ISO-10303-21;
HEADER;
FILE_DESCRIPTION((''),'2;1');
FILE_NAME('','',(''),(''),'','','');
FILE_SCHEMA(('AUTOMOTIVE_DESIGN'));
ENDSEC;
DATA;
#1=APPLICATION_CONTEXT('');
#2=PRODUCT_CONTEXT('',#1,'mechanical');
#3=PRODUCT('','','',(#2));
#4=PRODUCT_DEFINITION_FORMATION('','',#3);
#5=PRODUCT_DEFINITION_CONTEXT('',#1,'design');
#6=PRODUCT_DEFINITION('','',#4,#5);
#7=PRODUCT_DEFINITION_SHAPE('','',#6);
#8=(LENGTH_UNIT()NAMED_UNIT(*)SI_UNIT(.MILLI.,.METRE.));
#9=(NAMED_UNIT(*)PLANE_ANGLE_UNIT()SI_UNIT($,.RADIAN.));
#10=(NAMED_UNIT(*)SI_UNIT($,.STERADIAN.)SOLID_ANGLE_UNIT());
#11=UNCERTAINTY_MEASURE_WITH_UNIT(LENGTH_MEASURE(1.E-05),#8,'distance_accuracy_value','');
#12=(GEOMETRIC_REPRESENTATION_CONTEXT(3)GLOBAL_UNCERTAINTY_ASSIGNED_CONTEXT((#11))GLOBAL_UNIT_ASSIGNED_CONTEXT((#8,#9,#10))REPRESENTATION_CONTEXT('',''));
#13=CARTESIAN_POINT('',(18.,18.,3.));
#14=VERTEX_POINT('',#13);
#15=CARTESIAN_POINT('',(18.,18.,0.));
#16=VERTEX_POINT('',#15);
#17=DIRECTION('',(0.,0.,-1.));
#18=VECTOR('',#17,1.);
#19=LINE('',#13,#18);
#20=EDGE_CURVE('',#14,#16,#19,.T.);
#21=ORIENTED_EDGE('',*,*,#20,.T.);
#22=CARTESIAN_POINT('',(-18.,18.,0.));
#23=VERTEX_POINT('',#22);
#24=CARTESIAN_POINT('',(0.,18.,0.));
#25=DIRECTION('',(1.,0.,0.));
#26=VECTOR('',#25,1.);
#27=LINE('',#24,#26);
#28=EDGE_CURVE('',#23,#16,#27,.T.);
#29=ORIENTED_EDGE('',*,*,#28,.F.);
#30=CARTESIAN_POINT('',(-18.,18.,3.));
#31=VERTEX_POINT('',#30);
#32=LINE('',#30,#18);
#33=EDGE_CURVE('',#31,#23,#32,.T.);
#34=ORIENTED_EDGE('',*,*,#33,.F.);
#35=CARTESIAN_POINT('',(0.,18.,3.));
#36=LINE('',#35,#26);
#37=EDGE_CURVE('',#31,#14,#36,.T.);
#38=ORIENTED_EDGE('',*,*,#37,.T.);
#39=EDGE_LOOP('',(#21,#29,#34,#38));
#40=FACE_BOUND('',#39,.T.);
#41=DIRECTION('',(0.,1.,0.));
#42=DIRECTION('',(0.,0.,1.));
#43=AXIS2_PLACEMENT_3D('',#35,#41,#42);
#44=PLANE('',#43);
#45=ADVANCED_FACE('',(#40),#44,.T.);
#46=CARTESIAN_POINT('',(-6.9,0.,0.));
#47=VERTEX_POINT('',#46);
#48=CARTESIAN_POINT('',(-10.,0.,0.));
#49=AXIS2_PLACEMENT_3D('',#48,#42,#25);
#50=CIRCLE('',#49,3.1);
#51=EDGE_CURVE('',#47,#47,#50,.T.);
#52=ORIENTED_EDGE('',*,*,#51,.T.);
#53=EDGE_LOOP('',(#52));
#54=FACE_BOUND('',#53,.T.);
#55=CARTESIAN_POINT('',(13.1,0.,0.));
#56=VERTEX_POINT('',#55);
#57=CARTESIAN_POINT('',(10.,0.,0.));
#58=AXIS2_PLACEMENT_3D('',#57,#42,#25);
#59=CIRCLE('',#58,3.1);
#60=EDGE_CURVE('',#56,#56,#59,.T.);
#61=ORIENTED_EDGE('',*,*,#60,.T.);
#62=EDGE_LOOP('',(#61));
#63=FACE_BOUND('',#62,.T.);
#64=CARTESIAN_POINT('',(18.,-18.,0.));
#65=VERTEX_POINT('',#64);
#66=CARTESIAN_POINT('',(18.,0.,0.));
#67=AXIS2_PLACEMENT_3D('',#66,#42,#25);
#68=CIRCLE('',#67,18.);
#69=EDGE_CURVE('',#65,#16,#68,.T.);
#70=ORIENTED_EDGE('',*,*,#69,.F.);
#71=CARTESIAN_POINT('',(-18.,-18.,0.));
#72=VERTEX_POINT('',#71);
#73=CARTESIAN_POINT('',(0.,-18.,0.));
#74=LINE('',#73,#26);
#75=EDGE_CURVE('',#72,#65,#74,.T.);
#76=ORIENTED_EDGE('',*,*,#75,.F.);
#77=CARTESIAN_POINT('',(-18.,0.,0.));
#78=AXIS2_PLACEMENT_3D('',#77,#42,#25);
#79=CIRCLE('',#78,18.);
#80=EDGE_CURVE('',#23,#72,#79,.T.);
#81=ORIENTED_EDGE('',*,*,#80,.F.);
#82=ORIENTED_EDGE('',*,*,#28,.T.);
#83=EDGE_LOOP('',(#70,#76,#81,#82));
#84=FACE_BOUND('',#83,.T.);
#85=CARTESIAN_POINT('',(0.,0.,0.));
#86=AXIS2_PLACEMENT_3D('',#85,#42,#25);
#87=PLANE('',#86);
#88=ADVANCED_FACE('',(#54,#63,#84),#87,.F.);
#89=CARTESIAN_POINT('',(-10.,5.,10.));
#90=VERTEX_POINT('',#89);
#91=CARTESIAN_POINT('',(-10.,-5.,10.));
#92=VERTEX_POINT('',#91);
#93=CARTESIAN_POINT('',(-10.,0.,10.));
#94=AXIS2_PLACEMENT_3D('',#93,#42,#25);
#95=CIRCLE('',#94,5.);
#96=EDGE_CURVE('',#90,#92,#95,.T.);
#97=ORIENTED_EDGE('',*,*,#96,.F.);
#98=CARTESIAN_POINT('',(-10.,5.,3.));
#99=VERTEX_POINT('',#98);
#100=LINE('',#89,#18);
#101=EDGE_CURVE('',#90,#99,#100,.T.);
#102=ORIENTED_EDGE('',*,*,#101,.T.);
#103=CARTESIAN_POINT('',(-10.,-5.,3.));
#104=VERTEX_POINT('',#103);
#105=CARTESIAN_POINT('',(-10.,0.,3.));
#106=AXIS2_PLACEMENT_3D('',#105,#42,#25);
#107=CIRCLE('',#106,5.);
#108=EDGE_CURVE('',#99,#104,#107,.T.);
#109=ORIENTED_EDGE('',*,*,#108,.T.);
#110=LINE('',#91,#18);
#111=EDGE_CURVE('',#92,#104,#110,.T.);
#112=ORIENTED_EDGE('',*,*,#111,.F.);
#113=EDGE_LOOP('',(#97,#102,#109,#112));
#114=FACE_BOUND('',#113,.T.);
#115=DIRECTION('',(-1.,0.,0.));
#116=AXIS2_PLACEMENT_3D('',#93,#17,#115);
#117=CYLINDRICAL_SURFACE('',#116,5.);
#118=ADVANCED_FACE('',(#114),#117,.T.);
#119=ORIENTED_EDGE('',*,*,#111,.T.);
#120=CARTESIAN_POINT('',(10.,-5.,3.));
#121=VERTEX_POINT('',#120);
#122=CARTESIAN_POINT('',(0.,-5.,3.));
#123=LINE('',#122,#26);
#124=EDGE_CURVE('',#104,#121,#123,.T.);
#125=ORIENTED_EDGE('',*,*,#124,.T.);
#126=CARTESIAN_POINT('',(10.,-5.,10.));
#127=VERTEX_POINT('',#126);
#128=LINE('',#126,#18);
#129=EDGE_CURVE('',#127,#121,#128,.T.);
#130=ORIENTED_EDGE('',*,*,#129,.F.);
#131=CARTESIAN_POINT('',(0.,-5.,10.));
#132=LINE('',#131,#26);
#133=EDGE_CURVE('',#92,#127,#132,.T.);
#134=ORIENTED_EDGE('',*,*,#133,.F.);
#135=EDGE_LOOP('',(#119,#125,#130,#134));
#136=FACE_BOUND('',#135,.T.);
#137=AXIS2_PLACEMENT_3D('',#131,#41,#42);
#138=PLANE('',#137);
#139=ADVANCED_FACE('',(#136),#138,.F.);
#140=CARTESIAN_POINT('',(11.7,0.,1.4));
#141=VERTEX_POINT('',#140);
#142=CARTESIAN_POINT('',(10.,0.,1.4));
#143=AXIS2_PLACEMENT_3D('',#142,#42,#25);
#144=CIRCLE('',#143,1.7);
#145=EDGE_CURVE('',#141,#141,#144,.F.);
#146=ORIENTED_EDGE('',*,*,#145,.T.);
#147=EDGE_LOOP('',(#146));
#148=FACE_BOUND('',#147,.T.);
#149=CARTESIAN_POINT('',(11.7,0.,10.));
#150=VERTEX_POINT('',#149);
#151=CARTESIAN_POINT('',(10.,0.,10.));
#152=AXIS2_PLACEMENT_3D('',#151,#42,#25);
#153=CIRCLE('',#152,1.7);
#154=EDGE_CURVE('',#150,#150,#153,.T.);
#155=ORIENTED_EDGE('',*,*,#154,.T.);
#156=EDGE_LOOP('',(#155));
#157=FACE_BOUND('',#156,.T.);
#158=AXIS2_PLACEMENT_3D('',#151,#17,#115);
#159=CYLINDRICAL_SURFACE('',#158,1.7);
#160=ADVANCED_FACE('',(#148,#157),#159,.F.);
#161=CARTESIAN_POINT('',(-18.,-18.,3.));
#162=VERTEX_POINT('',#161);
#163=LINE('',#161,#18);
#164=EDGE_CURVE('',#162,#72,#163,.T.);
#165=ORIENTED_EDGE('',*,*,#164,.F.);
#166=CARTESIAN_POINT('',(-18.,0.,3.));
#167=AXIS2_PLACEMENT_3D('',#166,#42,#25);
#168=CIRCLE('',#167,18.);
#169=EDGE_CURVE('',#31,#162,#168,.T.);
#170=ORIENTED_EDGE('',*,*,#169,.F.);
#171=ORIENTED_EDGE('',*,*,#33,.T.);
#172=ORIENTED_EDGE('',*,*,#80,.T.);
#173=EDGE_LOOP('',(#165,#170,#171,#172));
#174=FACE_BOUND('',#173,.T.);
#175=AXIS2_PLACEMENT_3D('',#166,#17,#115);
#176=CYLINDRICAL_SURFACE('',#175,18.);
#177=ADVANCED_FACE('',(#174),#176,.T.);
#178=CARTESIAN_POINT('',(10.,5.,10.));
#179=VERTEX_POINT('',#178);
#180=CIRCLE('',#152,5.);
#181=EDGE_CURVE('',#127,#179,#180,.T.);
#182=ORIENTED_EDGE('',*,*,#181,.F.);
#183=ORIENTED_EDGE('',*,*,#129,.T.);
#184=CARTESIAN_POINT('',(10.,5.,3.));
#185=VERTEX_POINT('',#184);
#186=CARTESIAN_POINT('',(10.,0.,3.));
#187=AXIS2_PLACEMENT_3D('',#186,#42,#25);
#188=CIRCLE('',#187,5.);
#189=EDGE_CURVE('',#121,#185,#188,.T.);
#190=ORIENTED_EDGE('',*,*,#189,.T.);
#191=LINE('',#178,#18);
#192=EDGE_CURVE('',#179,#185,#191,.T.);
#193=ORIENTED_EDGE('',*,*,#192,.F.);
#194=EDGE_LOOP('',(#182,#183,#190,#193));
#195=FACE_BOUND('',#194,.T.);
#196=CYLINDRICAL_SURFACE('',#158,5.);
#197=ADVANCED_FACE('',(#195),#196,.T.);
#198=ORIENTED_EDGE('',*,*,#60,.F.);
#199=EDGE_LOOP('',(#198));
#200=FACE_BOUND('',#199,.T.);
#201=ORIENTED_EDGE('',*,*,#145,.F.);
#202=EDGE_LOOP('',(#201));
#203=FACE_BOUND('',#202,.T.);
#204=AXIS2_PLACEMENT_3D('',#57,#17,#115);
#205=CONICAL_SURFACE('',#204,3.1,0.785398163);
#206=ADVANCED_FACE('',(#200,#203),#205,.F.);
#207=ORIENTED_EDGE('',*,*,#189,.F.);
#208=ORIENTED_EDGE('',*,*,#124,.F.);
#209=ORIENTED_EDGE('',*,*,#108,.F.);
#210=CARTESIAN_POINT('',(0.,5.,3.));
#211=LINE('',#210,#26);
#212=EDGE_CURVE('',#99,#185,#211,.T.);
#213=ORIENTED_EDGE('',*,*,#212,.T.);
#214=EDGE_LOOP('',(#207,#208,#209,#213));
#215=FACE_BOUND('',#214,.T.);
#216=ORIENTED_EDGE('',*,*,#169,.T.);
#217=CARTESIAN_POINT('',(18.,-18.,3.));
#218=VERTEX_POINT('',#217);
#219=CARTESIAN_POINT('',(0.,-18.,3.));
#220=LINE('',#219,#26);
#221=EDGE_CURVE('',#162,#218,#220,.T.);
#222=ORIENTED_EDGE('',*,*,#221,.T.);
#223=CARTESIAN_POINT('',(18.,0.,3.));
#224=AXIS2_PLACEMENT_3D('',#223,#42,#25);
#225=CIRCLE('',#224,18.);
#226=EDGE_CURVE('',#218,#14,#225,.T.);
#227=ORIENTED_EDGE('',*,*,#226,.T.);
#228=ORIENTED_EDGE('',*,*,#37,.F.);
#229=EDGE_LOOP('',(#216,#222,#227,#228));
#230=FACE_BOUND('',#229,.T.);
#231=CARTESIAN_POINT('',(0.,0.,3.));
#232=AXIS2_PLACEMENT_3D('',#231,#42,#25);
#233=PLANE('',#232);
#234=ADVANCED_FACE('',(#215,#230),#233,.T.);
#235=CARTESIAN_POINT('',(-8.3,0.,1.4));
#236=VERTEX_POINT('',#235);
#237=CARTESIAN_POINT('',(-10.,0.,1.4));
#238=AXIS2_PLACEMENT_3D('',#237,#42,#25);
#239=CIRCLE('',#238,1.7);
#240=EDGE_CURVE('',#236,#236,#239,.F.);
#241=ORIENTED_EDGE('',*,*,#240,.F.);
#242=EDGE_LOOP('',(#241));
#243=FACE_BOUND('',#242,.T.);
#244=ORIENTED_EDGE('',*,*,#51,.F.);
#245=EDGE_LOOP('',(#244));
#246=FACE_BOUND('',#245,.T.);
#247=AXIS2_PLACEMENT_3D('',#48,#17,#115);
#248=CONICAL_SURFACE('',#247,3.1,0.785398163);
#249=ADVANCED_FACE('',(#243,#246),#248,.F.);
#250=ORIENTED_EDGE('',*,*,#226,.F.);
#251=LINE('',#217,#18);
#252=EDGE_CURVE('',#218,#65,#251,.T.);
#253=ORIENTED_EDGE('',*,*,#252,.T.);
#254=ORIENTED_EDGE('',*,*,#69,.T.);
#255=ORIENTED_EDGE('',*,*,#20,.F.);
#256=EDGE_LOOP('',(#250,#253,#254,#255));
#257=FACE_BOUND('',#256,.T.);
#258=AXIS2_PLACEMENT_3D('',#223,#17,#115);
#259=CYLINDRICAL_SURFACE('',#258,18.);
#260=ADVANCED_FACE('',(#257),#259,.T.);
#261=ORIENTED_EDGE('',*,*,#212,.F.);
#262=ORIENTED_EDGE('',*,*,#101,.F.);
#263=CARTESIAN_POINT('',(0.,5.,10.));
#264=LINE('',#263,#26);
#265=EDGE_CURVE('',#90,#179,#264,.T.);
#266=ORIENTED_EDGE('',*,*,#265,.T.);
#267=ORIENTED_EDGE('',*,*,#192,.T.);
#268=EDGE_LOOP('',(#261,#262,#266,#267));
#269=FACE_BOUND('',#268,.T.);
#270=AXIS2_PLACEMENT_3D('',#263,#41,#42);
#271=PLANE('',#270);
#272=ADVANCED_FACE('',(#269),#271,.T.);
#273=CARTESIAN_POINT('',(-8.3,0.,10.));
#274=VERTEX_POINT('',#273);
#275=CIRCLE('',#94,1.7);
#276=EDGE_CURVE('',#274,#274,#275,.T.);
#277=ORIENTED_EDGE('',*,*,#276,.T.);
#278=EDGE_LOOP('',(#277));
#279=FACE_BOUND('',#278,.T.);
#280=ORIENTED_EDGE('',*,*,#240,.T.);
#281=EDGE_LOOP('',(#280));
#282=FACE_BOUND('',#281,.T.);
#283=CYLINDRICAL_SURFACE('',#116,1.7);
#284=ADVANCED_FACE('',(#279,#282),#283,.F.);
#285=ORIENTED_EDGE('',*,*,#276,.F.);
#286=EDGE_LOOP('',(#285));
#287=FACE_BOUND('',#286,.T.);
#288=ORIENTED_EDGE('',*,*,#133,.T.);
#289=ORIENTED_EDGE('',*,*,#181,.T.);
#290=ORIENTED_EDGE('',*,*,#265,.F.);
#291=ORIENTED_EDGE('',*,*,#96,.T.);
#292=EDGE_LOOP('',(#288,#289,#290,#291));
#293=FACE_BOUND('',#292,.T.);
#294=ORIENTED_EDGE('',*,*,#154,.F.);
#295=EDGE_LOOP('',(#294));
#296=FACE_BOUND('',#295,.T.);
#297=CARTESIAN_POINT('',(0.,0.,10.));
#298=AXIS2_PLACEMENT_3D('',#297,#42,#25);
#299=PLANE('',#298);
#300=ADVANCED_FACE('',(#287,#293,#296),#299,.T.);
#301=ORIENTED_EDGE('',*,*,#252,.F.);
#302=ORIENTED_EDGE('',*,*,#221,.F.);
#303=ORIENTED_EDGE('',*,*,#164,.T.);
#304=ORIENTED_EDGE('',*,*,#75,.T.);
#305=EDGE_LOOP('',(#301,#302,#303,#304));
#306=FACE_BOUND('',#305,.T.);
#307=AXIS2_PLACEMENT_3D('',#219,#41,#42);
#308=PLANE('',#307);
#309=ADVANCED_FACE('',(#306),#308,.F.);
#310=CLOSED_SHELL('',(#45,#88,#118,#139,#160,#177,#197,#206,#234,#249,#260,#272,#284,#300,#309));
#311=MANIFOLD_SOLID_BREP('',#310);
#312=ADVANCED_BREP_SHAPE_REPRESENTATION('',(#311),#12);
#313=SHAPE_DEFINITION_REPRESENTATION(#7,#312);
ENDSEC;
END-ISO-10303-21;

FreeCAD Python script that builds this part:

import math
import FreeCAD as App
import Part
import Sketcher

V = App.Vector
Q = App.Units.Quantity


def edges_at(feature, points):
    """Names of the edges that pass closest to the given points."""
    edges = feature.Shape.Edges
    near = lambda p: min(range(len(edges)), key=lambda i: edges[i].distToShape(Part.Vertex(*p))[0])
    return sorted({f"Edge{near(p) + 1}" for p in points})

doc = App.newDocument("Part")
params = doc.addObject("Spreadsheet::Sheet", "Params")
for row, (alias, value) in enumerate([
    ("sketch1_radius", "18 mm"),
    ("sketch1_radius2", "5 mm"),
    ("sketch1_width", "36 mm"),
    ("sketch1_width2", "20 mm"),
    ("pad1_length", "3 mm"),
    ("sketch2_radius", "5 mm"),
    ("sketch2_diameter", "3.4 mm"),
    ("sketch2_width", "20 mm"),
    ("pad2_length", "10 mm"),
    ("chamfer_size", "1.4 mm"),
], start=1):
    params.set(f"A{row}", alias)
    params.set(f"B{row}", "=" + value)
    params.setAlias(f"B{row}", alias)

body = doc.addObject("PartDesign::Body", "Body")

# Sketch on XY plane
sketch1 = body.newObject("Sketcher::SketchObject", "Sketch")
sketch1.AttachmentSupport = (doc.getObject("XY_Plane"), [""])
sketch1.MapMode = "FlatFace"
sketch1.addGeometry(Part.LineSegment(V(-18, -18, 0), V(18, -18, 0)), False)
sketch1.addGeometry(Part.ArcOfCircle(Part.Circle(V(18, 0, 0), V(0, 0, 1), 18), math.radians(-90), math.radians(90)), False)
sketch1.addGeometry(Part.LineSegment(V(18, 18, 0), V(-18, 18, 0)), False)
sketch1.addGeometry(Part.ArcOfCircle(Part.Circle(V(-18, 0, 0), V(0, 0, 1), 18), math.radians(90), math.radians(270)), False)
sketch1.addGeometry(Part.ArcOfCircle(Part.Circle(V(10, 0, 0), V(0, 0, 1), 5), math.radians(-90), math.radians(90)), False)
sketch1.addGeometry(Part.LineSegment(V(10, -5, 0), V(-10, -5, 0)), False)
sketch1.addGeometry(Part.ArcOfCircle(Part.Circle(V(-10, 0, 0), V(0, 0, 1), 5), math.radians(90), math.radians(270)), False)
sketch1.addGeometry(Part.LineSegment(V(-10, 5, 0), V(10, 5, 0)), False)
sketch1.addConstraint(Sketcher.Constraint("Tangent", 0, 2, 1, 1))
sketch1.addConstraint(Sketcher.Constraint("Tangent", 1, 2, 2, 1))
sketch1.addConstraint(Sketcher.Constraint("Tangent", 2, 2, 3, 1))
sketch1.addConstraint(Sketcher.Constraint("Tangent", 3, 2, 0, 1))
sketch1.addConstraint(Sketcher.Constraint("Tangent", 4, 1, 5, 1))
sketch1.addConstraint(Sketcher.Constraint("Tangent", 5, 2, 6, 2))
sketch1.addConstraint(Sketcher.Constraint("Tangent", 6, 1, 7, 1))
sketch1.addConstraint(Sketcher.Constraint("Tangent", 7, 2, 4, 2))
sketch1.addConstraint(Sketcher.Constraint("Horizontal", 0))
sketch1.addConstraint(Sketcher.Constraint("Horizontal", 2))
sketch1.addConstraint(Sketcher.Constraint("Horizontal", 5))
sketch1.addConstraint(Sketcher.Constraint("Horizontal", 7))
sketch1.addConstraint(Sketcher.Constraint("Symmetric", 1, 3, 3, 3, -1, 1))
sketch1.addConstraint(Sketcher.Constraint("Symmetric", 4, 3, 6, 3, -1, 1))
sketch1.addConstraint(Sketcher.Constraint("Radius", 1, Q("18 mm")))
sketch1.addConstraint(Sketcher.Constraint("Radius", 4, Q("5 mm")))
sketch1.addConstraint(Sketcher.Constraint("DistanceX", 0, 1, 0, 2, Q("36 mm")))
sketch1.addConstraint(Sketcher.Constraint("DistanceX", 5, 2, 5, 1, Q("20 mm")))
sketch1.setExpression("Constraints[14]", "Params.sketch1_radius")
sketch1.setExpression("Constraints[15]", "Params.sketch1_radius2")
sketch1.setExpression("Constraints[16]", "Params.sketch1_width")
sketch1.setExpression("Constraints[17]", "Params.sketch1_width2")
pad1 = body.newObject("PartDesign::Pad", "Pad")
pad1.Profile = sketch1
pad1.setExpression("Length", "Params.pad1_length")

# Sketch on XY plane
sketch2 = body.newObject("Sketcher::SketchObject", "Sketch001")
sketch2.AttachmentSupport = (doc.getObject("XY_Plane"), [""])
sketch2.MapMode = "FlatFace"
sketch2.addGeometry(Part.LineSegment(V(-10, -5, 0), V(10, -5, 0)), False)
sketch2.addGeometry(Part.ArcOfCircle(Part.Circle(V(10, 0, 0), V(0, 0, 1), 5), math.radians(-90), math.radians(90)), False)
sketch2.addGeometry(Part.LineSegment(V(10, 5, 0), V(-10, 5, 0)), False)
sketch2.addGeometry(Part.ArcOfCircle(Part.Circle(V(-10, 0, 0), V(0, 0, 1), 5), math.radians(90), math.radians(270)), False)
sketch2.addGeometry(Part.Circle(V(-10, 0, 0), V(0, 0, 1), 1.7), False)
sketch2.addGeometry(Part.Circle(V(10, 0, 0), V(0, 0, 1), 1.7), False)
sketch2.addConstraint(Sketcher.Constraint("Tangent", 0, 2, 1, 1))
sketch2.addConstraint(Sketcher.Constraint("Tangent", 1, 2, 2, 1))
sketch2.addConstraint(Sketcher.Constraint("Tangent", 2, 2, 3, 1))
sketch2.addConstraint(Sketcher.Constraint("Tangent", 3, 2, 0, 1))
sketch2.addConstraint(Sketcher.Constraint("Horizontal", 0))
sketch2.addConstraint(Sketcher.Constraint("Horizontal", 2))
sketch2.addConstraint(Sketcher.Constraint("Coincident", 4, 3, 3, 3))
sketch2.addConstraint(Sketcher.Constraint("Coincident", 5, 3, 1, 3))
sketch2.addConstraint(Sketcher.Constraint("Equal", 4, 5))
sketch2.addConstraint(Sketcher.Constraint("Symmetric", 1, 3, 3, 3, -1, 1))
sketch2.addConstraint(Sketcher.Constraint("Radius", 1, Q("5 mm")))
sketch2.addConstraint(Sketcher.Constraint("Diameter", 4, Q("3.4 mm")))
sketch2.addConstraint(Sketcher.Constraint("DistanceX", 0, 1, 0, 2, Q("20 mm")))
sketch2.setExpression("Constraints[10]", "Params.sketch2_radius")
sketch2.setExpression("Constraints[11]", "Params.sketch2_diameter")
sketch2.setExpression("Constraints[12]", "Params.sketch2_width")
pad2 = body.newObject("PartDesign::Pad", "Pad001")
pad2.Profile = sketch2
pad2.setExpression("Length", "Params.pad2_length")
doc.recompute()

chamfer = body.newObject("PartDesign::Chamfer", "Chamfer")
chamfer.Base = (pad2, edges_at(pad2, [(-11.7, 0, 0), (8.3, 0, 0)]))
chamfer.setExpression("Size", "Params.chamfer_size")

doc.recompute()
